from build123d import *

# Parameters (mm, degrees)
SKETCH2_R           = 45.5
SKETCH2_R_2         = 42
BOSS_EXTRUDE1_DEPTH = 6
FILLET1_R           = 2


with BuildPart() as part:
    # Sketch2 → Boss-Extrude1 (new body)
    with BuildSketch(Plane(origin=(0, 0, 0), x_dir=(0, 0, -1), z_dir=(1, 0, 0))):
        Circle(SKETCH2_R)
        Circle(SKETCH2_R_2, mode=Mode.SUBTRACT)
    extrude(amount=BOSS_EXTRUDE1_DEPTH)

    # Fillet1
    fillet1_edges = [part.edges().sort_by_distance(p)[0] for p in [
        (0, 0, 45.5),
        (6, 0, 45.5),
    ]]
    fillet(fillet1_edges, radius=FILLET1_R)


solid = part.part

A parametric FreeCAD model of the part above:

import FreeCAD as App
import Part
import Sketcher

V = App.Vector


def edges_at(feature, points):
    """Names of the edges that pass closest to the given points."""
    edges = feature.Shape.Edges
    near = lambda p: min(range(len(edges)), key=lambda i: edges[i].distToShape(Part.Vertex(*p))[0])
    return sorted({f"Edge{near(p) + 1}" for p in points})

doc = App.newDocument("Part")
body = doc.addObject("PartDesign::Body", "Body")

# Sketch on YZ plane
sketch1 = body.newObject("Sketcher::SketchObject", "Sketch")
sketch1.AttachmentSupport = (doc.getObject("YZ_Plane"), [""])
sketch1.MapMode = "FlatFace"
sketch1.addGeometry(Part.Circle(V(0, 0, 0), V(0, 0, 1), 46), False)
sketch1.addGeometry(Part.Circle(V(0, 0, 0), V(0, 0, 1), 42), False)
sketch1.addConstraint(Sketcher.Constraint("Coincident", 0, 3, -1, 1))
sketch1.addConstraint(Sketcher.Constraint("Coincident", 1, 3, -1, 1))
sketch1.addConstraint(Sketcher.Constraint("Diameter", 0, 91.0))
sketch1.addConstraint(Sketcher.Constraint("Diameter", 1, 84.0))
pad1 = body.newObject("PartDesign::Pad", "Pad")
pad1.Profile = sketch1
pad1.Length = 6
doc.recompute()

fillet = body.newObject("PartDesign::Fillet", "Fillet")
fillet.Base = (pad1, edges_at(pad1, [(0, 0, 45.5), (6, 0, 45.5)]))
fillet.Radius = 2

doc.recompute()
